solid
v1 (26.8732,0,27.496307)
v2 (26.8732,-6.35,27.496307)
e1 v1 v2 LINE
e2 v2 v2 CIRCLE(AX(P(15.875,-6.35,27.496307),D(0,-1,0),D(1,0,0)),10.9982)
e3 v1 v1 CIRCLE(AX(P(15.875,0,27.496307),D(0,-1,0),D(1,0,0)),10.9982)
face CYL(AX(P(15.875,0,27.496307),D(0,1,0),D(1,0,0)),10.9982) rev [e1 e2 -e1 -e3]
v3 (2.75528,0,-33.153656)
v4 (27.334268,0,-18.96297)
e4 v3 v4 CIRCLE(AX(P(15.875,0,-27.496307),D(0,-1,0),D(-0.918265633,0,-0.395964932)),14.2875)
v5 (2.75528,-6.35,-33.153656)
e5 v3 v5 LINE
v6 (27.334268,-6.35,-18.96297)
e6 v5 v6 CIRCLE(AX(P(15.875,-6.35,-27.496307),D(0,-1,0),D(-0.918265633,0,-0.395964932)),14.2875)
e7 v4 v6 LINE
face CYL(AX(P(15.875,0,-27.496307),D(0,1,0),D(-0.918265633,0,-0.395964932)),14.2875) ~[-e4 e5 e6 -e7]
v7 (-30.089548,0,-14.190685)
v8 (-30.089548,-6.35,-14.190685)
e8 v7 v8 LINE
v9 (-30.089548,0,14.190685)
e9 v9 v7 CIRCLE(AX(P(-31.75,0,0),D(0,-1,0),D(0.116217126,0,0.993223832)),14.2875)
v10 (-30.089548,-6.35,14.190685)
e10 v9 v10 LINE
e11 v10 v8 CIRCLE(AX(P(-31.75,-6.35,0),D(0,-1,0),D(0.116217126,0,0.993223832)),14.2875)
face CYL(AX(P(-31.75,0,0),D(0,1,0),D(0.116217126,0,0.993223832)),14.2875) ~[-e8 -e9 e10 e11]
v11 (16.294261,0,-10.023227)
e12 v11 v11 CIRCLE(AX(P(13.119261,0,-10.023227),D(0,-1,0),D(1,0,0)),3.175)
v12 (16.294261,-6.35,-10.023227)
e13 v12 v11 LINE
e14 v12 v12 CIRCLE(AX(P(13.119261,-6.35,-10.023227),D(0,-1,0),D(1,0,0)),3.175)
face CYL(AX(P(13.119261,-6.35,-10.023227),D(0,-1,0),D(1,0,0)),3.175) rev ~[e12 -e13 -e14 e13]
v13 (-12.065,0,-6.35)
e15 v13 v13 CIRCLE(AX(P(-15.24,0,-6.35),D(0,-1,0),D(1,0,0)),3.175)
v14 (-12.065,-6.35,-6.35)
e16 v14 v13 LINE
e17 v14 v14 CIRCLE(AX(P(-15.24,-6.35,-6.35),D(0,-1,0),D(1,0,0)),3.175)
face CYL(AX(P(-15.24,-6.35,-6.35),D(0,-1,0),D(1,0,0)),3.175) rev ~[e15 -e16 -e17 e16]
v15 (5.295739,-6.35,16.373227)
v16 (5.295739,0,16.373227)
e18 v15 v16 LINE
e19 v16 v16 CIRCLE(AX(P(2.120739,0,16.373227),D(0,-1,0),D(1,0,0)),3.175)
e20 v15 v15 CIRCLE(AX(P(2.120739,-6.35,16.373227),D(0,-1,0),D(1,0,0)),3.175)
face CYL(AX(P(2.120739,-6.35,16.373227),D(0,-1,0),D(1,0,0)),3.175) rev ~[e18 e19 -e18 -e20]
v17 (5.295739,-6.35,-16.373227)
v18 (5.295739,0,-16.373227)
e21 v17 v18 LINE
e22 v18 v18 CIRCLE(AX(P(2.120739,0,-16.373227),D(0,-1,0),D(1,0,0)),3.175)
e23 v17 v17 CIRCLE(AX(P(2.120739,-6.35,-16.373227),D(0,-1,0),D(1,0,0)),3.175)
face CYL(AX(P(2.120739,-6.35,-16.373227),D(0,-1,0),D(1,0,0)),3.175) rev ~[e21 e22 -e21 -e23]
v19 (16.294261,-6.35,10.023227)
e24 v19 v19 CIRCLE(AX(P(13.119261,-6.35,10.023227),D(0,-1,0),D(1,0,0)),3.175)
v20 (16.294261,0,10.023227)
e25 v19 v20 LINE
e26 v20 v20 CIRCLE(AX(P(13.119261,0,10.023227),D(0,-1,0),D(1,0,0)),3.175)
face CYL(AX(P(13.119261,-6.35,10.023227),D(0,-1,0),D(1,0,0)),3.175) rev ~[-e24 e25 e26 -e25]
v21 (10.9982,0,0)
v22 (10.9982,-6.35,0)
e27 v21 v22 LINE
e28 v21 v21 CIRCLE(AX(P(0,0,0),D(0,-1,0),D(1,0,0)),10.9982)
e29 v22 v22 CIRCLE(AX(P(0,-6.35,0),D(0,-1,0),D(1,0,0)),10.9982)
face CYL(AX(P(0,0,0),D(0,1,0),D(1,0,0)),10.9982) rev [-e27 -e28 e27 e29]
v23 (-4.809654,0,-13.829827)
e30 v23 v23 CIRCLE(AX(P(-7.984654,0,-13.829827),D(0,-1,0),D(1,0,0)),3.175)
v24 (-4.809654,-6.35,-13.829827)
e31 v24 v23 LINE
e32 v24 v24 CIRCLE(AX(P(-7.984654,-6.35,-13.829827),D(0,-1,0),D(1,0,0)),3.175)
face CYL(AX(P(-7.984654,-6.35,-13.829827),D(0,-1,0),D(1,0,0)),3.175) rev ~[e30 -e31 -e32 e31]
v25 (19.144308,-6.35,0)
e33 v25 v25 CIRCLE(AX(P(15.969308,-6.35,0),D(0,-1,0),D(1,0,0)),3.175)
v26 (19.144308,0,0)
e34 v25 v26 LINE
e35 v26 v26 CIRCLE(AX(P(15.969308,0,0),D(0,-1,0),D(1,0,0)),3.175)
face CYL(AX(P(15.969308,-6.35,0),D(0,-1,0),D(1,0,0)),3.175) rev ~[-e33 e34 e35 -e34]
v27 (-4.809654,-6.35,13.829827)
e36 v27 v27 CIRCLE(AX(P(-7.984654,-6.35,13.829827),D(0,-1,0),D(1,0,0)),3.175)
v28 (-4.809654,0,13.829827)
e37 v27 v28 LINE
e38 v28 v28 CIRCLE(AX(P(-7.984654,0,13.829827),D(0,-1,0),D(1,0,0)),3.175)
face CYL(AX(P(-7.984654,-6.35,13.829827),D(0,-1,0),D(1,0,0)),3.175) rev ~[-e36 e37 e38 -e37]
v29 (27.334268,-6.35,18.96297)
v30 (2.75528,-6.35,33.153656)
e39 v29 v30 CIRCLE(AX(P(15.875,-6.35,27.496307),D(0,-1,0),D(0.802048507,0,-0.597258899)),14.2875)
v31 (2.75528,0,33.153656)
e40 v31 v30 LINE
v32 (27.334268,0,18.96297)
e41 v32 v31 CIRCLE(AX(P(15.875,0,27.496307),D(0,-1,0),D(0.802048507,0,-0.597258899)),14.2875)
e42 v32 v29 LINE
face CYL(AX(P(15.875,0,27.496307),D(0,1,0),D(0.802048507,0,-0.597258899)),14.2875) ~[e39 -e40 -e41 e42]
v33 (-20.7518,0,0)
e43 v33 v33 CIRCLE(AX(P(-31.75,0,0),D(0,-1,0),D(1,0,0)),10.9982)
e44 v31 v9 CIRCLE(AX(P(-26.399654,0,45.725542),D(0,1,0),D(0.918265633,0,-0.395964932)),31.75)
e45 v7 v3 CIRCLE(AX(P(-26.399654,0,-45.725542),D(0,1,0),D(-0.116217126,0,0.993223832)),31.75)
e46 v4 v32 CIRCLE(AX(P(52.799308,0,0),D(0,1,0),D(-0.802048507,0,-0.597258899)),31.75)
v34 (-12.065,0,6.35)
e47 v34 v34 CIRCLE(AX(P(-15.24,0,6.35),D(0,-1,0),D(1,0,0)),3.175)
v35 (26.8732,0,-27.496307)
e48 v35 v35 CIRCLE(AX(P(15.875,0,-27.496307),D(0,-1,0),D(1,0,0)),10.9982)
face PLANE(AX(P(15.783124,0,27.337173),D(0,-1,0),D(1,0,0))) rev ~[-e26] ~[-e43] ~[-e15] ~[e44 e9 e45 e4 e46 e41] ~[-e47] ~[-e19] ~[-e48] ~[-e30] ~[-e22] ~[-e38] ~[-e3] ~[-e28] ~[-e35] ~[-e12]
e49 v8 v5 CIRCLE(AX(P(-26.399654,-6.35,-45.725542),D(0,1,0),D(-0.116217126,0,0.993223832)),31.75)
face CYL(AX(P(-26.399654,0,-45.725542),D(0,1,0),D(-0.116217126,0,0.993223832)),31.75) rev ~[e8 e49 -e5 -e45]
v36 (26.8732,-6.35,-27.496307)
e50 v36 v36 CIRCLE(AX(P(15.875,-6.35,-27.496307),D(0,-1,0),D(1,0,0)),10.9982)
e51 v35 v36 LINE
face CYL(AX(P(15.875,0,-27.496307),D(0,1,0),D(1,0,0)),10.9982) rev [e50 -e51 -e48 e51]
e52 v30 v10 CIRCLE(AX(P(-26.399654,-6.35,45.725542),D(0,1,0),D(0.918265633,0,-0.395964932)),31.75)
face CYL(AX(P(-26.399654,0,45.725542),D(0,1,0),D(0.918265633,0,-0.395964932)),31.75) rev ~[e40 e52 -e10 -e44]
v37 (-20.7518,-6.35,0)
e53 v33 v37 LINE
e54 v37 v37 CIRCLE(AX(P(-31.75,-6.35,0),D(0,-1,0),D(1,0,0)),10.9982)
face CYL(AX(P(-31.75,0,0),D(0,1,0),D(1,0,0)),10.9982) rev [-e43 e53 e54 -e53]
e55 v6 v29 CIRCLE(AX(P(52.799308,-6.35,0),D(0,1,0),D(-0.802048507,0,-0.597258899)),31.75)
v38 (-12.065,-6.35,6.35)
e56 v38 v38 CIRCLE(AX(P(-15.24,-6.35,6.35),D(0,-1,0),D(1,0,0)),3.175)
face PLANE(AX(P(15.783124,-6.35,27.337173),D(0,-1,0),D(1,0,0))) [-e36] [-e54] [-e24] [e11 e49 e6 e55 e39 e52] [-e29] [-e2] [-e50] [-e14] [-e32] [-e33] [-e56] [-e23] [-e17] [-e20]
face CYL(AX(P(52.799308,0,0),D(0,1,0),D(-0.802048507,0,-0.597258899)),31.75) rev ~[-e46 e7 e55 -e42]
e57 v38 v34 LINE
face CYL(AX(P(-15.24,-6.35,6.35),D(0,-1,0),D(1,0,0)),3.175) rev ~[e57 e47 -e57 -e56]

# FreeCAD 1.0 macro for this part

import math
import FreeCAD as App
import Part
import Sketcher
from FreeCAD import Vector
Q = App.Units.Quantity

doc = App.newDocument("Part")
body = doc.addObject("PartDesign::Body", "Body")

# Sketch on XZ plane
sketch1 = body.newObject("Sketcher::SketchObject", "Sketch")
sketch1.AttachmentSupport = (doc.getObject("XZ_Plane"), [""])
sketch1.MapMode = "FlatFace"
sketch1.addGeometry(Part.ArcOfCircle(Part.Circle(Vector(15.875, 27.496307, 0), Vector(0, 0, 1), 14.2875), math.radians(-36.673832), math.radians(156.673832)), False)
sketch1.addGeometry(Part.ArcOfCircle(Part.Circle(Vector(-26.399654, 45.725542, 0), Vector(0, 0, 1), 31.75), math.radians(-96.673832), math.radians(-23.326168)), False)
sketch1.addGeometry(Part.ArcOfCircle(Part.Circle(Vector(-31.75, 0, 0), Vector(0, 0, 1), 14.2875), math.radians(83.326168), math.radians(276.673832)), False)
sketch1.addGeometry(Part.ArcOfCircle(Part.Circle(Vector(-26.399654, -45.725542, 0), Vector(0, 0, 1), 31.75), math.radians(23.326168), math.radians(96.673832)), False)
sketch1.addGeometry(Part.ArcOfCircle(Part.Circle(Vector(15.875, -27.496307, 0), Vector(0, 0, 1), 14.2875), math.radians(-156.673832), math.radians(36.673832)), False)
sketch1.addGeometry(Part.ArcOfCircle(Part.Circle(Vector(52.799308, 0, 0), Vector(0, 0, 1), 31.75), math.radians(143.326168), math.radians(216.673832)), False)
sketch1.addGeometry(Part.Circle(Vector(15.875, -27.496307, 0), Vector(0, 0, 1), 10.9982), False)
sketch1.addGeometry(Part.Circle(Vector(-31.75, 0, 0), Vector(0, 0, 1), 10.9982), False)
sketch1.addGeometry(Part.Circle(Vector(0, 0, 0), Vector(0, 0, 1), 10.9982), False)
sketch1.addGeometry(Part.Circle(Vector(15.875, 27.496307, 0), Vector(0, 0, 1), 10.9982), False)
sketch1.addConstraint(Sketcher.Constraint("Tangent", 0, 2, 1, 2))
sketch1.addConstraint(Sketcher.Constraint("Tangent", 1, 1, 2, 1))
sketch1.addConstraint(Sketcher.Constraint("Tangent", 2, 2, 3, 2))
sketch1.addConstraint(Sketcher.Constraint("Tangent", 3, 1, 4, 1))
sketch1.addConstraint(Sketcher.Constraint("Tangent", 4, 2, 5, 2))
sketch1.addConstraint(Sketcher.Constraint("Tangent", 5, 1, 0, 1))
sketch1.addConstraint(Sketcher.Constraint("Coincident", 8, 3, -1, 1))
sketch1.addConstraint(Sketcher.Constraint("Coincident", 6, 3, 4, 3))
sketch1.addConstraint(Sketcher.Constraint("Coincident", 7, 3, 2, 3))
sketch1.addConstraint(Sketcher.Constraint("Coincident", 9, 3, 0, 3))
sketch1.addConstraint(Sketcher.Constraint("Equal", 0, 2))
sketch1.addConstraint(Sketcher.Constraint("Equal", 1, 3))
sketch1.addConstraint(Sketcher.Constraint("Equal", 2, 4))
sketch1.addConstraint(Sketcher.Constraint("Equal", 3, 5))
sketch1.addConstraint(Sketcher.Constraint("Equal", 6, 7))
sketch1.addConstraint(Sketcher.Constraint("Equal", 7, 8))
sketch1.addConstraint(Sketcher.Constraint("Equal", 8, 9))
sketch1.addConstraint(Sketcher.Constraint("Symmetric", 1, 3, 3, 3, -1))
sketch1.addConstraint(Sketcher.Constraint("PointOnObject", 5, 3, -1))
sketch1.addConstraint(Sketcher.Constraint("Radius", 1, Q("1.25 in")))
sketch1.addConstraint(Sketcher.Constraint("Diameter", 6, Q("0.866 in")))
sketch1.addConstraint(Sketcher.Constraint("Radius", 0, Q("0.5625 in")))
sketch1.addConstraint(Sketcher.Constraint("DistanceX", 2, 3, -1, 1, Q("1.25 in")))
sketch1.addConstraint(Sketcher.Constraint("DistanceX", -1, 1, 0, 3, Q("0.625 in")))
sketch1.addConstraint(Sketcher.Constraint("DistanceX", -1, 1, 5, 3, 52.799308))
pad1 = body.newObject("PartDesign::Pad", "Pad")
pad1.Profile = sketch1
pad1.Length = Q("0.25 in")

# Sketch on XZ plane
sketch2 = body.newObject("Sketcher::SketchObject", "Sketch001")
sketch2.AttachmentSupport = (doc.getObject("XZ_Plane"), [""])
sketch2.MapMode = "FlatFace"
sketch2.AttachmentOffset = App.Placement(Vector(0, 0, 0.25 * 25.4), App.Rotation())
sketch2.addGeometry(Part.Circle(Vector(-15.24, 6.35, 0), Vector(0, 0, 1), 3.175), False)
sketch2.addGeometry(Part.Circle(Vector(2.120739, 16.373227, 0), Vector(0, 0, 1), 3.175), False)
sketch2.addGeometry(Part.Circle(Vector(13.119261, 10.023227, 0), Vector(0, 0, 1), 3.175), False)
sketch2.addGeometry(Part.Circle(Vector(13.119261, -10.023227, 0), Vector(0, 0, 1), 3.175), False)
sketch2.addGeometry(Part.Circle(Vector(2.120739, -16.373227, 0), Vector(0, 0, 1), 3.175), False)
sketch2.addGeometry(Part.Circle(Vector(-15.24, -6.35, 0), Vector(0, 0, 1), 3.175), False)
sketch2.addGeometry(Part.Circle(Vector(-7.984654, 13.829827, 0), Vector(0, 0, 1), 3.175), False)
sketch2.addGeometry(Part.Circle(Vector(15.969308, 0, 0), Vector(0, 0, 1), 3.175), False)
sketch2.addGeometry(Part.Circle(Vector(-7.984654, -13.829827, 0), Vector(0, 0, 1), 3.175), False)
sketch2.addConstraint(Sketcher.Constraint("Equal", 0, 1))
sketch2.addConstraint(Sketcher.Constraint("Equal", 1, 2))
sketch2.addConstraint(Sketcher.Constraint("Equal", 2, 3))
sketch2.addConstraint(Sketcher.Constraint("Equal", 3, 4))
sketch2.addConstraint(Sketcher.Constraint("Equal", 4, 5))
sketch2.addConstraint(Sketcher.Constraint("Equal", 5, 6))
sketch2.addConstraint(Sketcher.Constraint("Equal", 6, 7))
sketch2.addConstraint(Sketcher.Constraint("Equal", 7, 8))
sketch2.addConstraint(Sketcher.Constraint("Symmetric", 2, 3, 3, 3, -1))
sketch2.addConstraint(Sketcher.Constraint("Symmetric", 1, 3, 4, 3, -1))
sketch2.addConstraint(Sketcher.Constraint("Symmetric", 0, 3, 5, 3, -1))
sketch2.addConstraint(Sketcher.Constraint("Symmetric", 6, 3, 8, 3, -1))
sketch2.addConstraint(Sketcher.Constraint("PointOnObject", 7, 3, -1))
sketch2.addConstraint(Sketcher.Constraint("Diameter", 0, Q("0.25 in")))
sketch2.addConstraint(Sketcher.Constraint("DistanceX", 0, 3, -1, 1, Q("0.6 in")))
sketch2.addConstraint(Sketcher.Constraint("DistanceY", 5, 3, 0, 3, Q("0.5 in")))
sketch2.addConstraint(Sketcher.Constraint("DistanceY", 2, 3, 1, 3, Q("0.25 in")))
sketch2.addConstraint(Sketcher.Constraint("DistanceY", 6, 3, 1, 3, 2.543401))
sketch2.addConstraint(Sketcher.Constraint("DistanceX", -1, 1, 1, 3, 2.120739))
sketch2.addConstraint(Sketcher.Constraint("DistanceX", -1, 1, 2, 3, 13.119261))
sketch2.addConstraint(Sketcher.Constraint("DistanceX", -1, 1, 7, 3, 15.969308))
sketch2.addConstraint(Sketcher.Constraint("DistanceY", -1, 1, 1, 3, 16.373227))
sketch2.addConstraint(Sketcher.Constraint("DistanceX", 6, 3, -1, 1, 7.984654))
pocket1 = body.newObject("PartDesign::Pocket", "Pocket")
pocket1.Profile = sketch2
pocket1.Type = "ThroughAll"

doc.recompute()
